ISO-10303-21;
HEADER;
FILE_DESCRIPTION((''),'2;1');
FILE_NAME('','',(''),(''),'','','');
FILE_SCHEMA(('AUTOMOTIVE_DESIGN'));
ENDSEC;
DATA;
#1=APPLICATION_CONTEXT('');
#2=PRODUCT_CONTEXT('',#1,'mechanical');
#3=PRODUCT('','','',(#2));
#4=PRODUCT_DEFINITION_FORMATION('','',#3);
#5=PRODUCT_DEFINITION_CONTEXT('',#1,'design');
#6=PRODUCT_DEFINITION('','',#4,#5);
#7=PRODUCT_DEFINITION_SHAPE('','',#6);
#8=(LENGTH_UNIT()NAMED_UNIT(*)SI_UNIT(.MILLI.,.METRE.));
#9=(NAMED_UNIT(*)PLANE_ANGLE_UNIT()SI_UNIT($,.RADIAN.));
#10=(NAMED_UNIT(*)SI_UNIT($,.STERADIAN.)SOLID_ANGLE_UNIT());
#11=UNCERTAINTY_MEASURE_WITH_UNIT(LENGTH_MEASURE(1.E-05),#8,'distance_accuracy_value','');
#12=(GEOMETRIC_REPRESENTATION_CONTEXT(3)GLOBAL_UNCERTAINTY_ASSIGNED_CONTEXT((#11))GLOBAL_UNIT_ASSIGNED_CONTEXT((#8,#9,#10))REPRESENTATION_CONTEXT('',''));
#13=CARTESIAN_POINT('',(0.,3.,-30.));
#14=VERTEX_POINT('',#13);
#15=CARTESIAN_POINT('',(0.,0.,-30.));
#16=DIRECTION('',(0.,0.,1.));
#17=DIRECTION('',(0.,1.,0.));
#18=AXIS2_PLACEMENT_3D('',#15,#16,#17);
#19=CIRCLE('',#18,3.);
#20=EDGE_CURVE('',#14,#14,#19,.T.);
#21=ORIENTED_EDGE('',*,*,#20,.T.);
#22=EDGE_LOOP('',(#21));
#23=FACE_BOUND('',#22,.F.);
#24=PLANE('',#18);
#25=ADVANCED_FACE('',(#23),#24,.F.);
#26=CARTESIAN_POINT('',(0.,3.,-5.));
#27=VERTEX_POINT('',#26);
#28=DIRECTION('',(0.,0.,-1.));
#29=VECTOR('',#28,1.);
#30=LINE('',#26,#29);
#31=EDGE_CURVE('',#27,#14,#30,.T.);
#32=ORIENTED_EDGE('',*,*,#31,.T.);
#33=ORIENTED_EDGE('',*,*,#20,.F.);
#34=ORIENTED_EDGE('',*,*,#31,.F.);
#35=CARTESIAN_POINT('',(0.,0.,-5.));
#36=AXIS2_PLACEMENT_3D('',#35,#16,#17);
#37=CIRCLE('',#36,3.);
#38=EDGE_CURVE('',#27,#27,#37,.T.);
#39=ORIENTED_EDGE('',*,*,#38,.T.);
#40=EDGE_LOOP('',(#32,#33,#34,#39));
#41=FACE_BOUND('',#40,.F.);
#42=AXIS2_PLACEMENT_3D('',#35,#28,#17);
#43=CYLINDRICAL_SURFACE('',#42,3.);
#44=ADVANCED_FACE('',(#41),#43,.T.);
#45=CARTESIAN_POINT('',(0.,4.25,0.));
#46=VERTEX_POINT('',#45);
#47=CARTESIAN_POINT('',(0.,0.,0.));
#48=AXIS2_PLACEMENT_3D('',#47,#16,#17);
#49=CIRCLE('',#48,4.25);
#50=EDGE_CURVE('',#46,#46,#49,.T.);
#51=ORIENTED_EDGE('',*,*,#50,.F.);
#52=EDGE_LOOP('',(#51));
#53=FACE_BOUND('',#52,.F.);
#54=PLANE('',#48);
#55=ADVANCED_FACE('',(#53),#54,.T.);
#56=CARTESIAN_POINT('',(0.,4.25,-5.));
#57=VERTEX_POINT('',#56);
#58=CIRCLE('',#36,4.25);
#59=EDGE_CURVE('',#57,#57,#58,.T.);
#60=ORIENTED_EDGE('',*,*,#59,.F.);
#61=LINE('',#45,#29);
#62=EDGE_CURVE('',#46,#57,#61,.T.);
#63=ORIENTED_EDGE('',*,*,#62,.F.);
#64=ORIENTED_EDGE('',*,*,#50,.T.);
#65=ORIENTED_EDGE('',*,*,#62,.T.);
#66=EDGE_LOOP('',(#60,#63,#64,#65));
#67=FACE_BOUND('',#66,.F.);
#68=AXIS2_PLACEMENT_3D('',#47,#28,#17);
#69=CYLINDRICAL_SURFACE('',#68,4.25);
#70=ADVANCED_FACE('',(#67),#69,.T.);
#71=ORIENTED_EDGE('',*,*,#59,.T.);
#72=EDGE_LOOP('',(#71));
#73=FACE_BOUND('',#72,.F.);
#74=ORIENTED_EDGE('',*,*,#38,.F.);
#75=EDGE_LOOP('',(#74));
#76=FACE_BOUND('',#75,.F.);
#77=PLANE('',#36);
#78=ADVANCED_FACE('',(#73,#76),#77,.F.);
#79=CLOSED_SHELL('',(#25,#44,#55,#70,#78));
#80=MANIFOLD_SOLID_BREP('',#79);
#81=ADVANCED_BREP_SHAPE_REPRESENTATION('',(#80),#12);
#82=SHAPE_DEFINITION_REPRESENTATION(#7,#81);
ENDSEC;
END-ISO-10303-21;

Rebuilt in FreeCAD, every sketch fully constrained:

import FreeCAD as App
import Part
import Sketcher
from FreeCAD import Vector
Q = App.Units.Quantity


def add_polygon(sketch, points):
    """Adds a closed chain of lines whose ends are joined by coincident constraints."""
    first, n = sketch.GeometryCount, len(points)
    for a, b in zip(points, points[1:] + points[:1]):
        sketch.addGeometry(Part.LineSegment(App.Vector(*a, 0), App.Vector(*b, 0)), False)
    for i in range(n):
        sketch.addConstraint(Sketcher.Constraint("Coincident", first + i, 2, first + (i + 1) % n, 1))

doc = App.newDocument("Part")
body = doc.addObject("PartDesign::Body", "Body")

# Sketch on YZ plane
sketch1 = body.newObject("Sketcher::SketchObject", "Sketch")
sketch1.AttachmentSupport = (doc.getObject("YZ_Plane"), [""])
sketch1.MapMode = "FlatFace"
add_polygon(sketch1, [(4.2, 0), (0, 0), (0, -30), (3, -30), (3, -5), (4.2, -5)])  # lines 0-5
sketch1.addConstraint([
    Sketcher.Constraint("Horizontal", 0),
    Sketcher.Constraint("Vertical", 1),
    Sketcher.Constraint("Horizontal", 2),
    Sketcher.Constraint("Vertical", 3),
    Sketcher.Constraint("Horizontal", 4),
    Sketcher.Constraint("Vertical", 5),
    Sketcher.Constraint("Coincident", 0, 2, -1, 1),
    Sketcher.Constraint("DistanceY", 3, 1, 3, 2, Q("25 mm")),
    Sketcher.Constraint("DistanceY", 5, 1, 5, 2, Q("5 mm")),
    Sketcher.Constraint("DistanceX", 0, 2, 0, 1, Q("4.25 mm")),
    Sketcher.Constraint("DistanceX", 4, 1, 4, 2, Q("1.25 mm")),
])
revolution = body.newObject("PartDesign::Revolution", "Revolution")
revolution.Profile = sketch1
revolution.ReferenceAxis = (sketch1, ["V_Axis"])
revolution.Angle = 360

doc.recompute()
